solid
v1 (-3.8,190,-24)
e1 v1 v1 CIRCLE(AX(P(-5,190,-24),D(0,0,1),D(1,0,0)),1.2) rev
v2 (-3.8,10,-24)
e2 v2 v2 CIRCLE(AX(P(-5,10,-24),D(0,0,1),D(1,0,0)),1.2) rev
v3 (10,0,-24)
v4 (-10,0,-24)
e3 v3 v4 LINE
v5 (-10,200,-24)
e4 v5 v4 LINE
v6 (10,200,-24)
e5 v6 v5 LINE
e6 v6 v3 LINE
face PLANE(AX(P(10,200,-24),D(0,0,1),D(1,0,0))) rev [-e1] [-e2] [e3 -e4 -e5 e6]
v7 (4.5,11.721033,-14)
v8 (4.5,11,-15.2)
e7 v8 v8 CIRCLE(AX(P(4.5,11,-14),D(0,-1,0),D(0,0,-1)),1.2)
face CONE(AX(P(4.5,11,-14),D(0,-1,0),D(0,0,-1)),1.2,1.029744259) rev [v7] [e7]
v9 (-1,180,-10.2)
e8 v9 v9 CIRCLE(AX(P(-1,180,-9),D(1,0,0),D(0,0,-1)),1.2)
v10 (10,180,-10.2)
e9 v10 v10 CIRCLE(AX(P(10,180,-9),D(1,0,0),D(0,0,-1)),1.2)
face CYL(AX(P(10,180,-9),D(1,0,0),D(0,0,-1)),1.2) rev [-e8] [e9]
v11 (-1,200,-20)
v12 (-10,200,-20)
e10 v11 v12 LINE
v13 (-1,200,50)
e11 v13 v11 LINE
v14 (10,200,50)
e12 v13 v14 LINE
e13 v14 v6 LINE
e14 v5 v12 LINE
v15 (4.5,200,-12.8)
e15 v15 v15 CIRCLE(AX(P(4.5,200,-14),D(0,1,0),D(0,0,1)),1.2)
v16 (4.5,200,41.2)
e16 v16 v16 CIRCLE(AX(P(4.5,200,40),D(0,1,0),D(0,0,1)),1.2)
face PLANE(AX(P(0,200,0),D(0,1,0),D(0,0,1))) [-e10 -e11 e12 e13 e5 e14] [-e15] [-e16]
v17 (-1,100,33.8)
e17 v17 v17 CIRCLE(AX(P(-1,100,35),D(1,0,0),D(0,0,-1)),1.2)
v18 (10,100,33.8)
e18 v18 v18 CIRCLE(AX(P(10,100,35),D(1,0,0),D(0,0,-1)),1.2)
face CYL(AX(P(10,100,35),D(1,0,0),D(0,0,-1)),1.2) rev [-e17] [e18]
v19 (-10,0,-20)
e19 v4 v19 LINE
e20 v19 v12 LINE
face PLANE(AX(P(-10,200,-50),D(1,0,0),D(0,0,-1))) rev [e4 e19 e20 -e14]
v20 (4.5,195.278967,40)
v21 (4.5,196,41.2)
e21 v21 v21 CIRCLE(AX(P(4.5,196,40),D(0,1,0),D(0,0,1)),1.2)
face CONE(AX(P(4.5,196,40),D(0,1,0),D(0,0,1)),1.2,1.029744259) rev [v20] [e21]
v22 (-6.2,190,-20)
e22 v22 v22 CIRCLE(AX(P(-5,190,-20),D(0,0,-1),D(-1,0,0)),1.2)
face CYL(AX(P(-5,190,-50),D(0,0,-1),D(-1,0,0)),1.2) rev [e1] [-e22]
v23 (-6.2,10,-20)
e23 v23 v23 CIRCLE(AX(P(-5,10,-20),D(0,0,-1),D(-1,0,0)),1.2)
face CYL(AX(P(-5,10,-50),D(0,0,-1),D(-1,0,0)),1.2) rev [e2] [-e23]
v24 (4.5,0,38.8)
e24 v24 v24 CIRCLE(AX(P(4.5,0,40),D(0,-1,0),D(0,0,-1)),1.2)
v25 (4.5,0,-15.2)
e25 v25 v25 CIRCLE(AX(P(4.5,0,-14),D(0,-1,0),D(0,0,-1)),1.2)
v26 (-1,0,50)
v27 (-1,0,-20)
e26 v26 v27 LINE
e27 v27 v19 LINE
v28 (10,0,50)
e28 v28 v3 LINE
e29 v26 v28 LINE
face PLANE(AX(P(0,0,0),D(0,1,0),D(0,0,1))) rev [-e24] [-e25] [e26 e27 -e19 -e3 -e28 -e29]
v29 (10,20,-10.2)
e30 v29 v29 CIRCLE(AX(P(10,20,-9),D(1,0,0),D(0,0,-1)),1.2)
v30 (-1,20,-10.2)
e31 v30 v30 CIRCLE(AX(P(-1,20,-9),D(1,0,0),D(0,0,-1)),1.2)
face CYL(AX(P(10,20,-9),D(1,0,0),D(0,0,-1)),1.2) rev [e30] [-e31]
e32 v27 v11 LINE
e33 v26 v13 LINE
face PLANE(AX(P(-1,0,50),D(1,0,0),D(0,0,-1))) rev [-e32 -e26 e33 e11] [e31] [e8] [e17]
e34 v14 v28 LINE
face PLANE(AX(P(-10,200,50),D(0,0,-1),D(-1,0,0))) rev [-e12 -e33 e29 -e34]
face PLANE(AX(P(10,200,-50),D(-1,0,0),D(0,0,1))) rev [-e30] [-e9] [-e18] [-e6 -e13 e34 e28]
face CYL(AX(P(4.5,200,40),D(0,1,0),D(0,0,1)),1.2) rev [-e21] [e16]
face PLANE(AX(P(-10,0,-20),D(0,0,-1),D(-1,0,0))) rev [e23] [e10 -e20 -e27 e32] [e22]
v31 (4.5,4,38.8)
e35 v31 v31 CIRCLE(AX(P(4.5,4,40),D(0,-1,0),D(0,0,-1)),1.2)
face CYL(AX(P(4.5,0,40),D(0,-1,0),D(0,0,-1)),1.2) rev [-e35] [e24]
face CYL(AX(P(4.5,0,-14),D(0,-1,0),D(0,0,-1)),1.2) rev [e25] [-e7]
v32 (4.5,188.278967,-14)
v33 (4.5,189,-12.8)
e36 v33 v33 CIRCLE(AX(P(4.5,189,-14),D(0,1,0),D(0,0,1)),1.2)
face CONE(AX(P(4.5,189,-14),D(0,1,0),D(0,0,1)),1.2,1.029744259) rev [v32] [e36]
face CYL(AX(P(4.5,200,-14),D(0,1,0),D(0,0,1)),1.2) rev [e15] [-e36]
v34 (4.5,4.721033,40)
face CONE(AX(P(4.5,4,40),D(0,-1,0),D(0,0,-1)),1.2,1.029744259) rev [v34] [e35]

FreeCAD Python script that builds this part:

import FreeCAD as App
import Part
import Sketcher

V = App.Vector
Q = App.Units.Quantity

doc = App.newDocument("Part")
body = doc.addObject("PartDesign::Body", "Body")

# Sketch on XZ plane
sketch1 = body.newObject("Sketcher::SketchObject", "Sketch")
sketch1.AttachmentSupport = (doc.getObject("XZ_Plane"), [""])
sketch1.MapMode = "FlatFace"
sketch1.addGeometry([
    Part.LineSegment(V(-10, -50, 0), V(-10, 50, 0)),
    Part.LineSegment(V(-10, 50, 0), V(10, 50, 0)),
    Part.LineSegment(V(10, 50, 0), V(10, -50, 0)),
    Part.LineSegment(V(10, -50, 0), V(-10, -50, 0)),
], False)
sketch1.addConstraint([
    Sketcher.Constraint("Coincident", 0, 2, 1, 1),
    Sketcher.Constraint("Coincident", 1, 2, 2, 1),
    Sketcher.Constraint("Coincident", 2, 2, 3, 1),
    Sketcher.Constraint("Coincident", 3, 2, 0, 1),
    Sketcher.Constraint("Vertical", 0),
    Sketcher.Constraint("Horizontal", 1),
    Sketcher.Constraint("Vertical", 2),
    Sketcher.Constraint("Horizontal", 3),
    Sketcher.Constraint("Symmetric", 0, 2, 2, 2, -1, 1),
    Sketcher.Constraint("DistanceX", 1, 1, 1, 2, Q("20 mm")),
    Sketcher.Constraint("DistanceY", 0, 1, 0, 2, Q("100 mm")),
])
pad1 = body.newObject("PartDesign::Pad", "Pad")
pad1.Profile = sketch1
pad1.Length = 200
pad1.Reversed = True

# Sketch on XZ plane
sketch2 = body.newObject("Sketcher::SketchObject", "Sketch001")
sketch2.AttachmentSupport = (doc.getObject("XZ_Plane"), [""])
sketch2.MapMode = "FlatFace"
sketch2.AttachmentOffset = App.Placement(V(0, 0, -200), App.Rotation())
sketch2.addGeometry([
    Part.LineSegment(V(-10, -20, 0), V(-10, 50, 0)),
    Part.LineSegment(V(-10, 50, 0), V(-1, 50, 0)),
    Part.LineSegment(V(-1, 50, 0), V(-1, -20, 0)),
    Part.LineSegment(V(-1, -20, 0), V(-10, -20, 0)),
], False)
sketch2.addConstraint([
    Sketcher.Constraint("Coincident", 0, 2, 1, 1),
    Sketcher.Constraint("Coincident", 1, 2, 2, 1),
    Sketcher.Constraint("Coincident", 2, 2, 3, 1),
    Sketcher.Constraint("Coincident", 3, 2, 0, 1),
    Sketcher.Constraint("Vertical", 0),
    Sketcher.Constraint("Horizontal", 1),
    Sketcher.Constraint("Vertical", 2),
    Sketcher.Constraint("Horizontal", 3),
    Sketcher.Constraint("DistanceX", 1, 1, 1, 2, Q("9 mm")),
    Sketcher.Constraint("DistanceY", 0, 1, 0, 2, Q("70 mm")),
    Sketcher.Constraint("DistanceX", 0, 2, -1, 1, Q("10 mm")),
    Sketcher.Constraint("DistanceY", -1, 1, 0, 2, Q("50 mm")),
])
pocket1 = body.newObject("PartDesign::Pocket", "Pocket")
pocket1.Profile = sketch2
pocket1.Type = "ThroughAll"
pocket1.Reversed = True

# Sketch on XZ plane
sketch3 = body.newObject("Sketcher::SketchObject", "Sketch002")
sketch3.AttachmentSupport = (doc.getObject("XZ_Plane"), [""])
sketch3.MapMode = "FlatFace"
sketch3.AttachmentOffset = App.Placement(V(0, 0, -200), App.Rotation())
sketch3.addGeometry([
    Part.Circle(V(4.5, -40, 0), V(0, 0, 1), 1.2),
    Part.Circle(V(4.5, 40, 0), V(0, 0, 1), 1.2),
], False)
sketch3.addConstraint([
    Sketcher.Constraint("Equal", 0, 1),
    Sketcher.Constraint("Symmetric", 0, 3, 1, 3, -1),
    Sketcher.Constraint("Diameter", 0, Q("2.4 mm")),
    Sketcher.Constraint("DistanceY", 0, 3, -1, 1, Q("40 mm")),
    Sketcher.Constraint("DistanceX", -1, 1, 0, 3, Q("4.5 mm")),
])
doc.recompute()
hole = body.newObject("PartDesign::Hole", "Hole")
hole.Profile = sketch3
hole.ThreadType = "None"
hole.Diameter = 2.4
hole.DepthType = "Dimension"
hole.Depth = 4
hole.DrillPoint = "Angled"
hole.DrillPointAngle = 118
hole.Reversed = True

# Sketch on XZ plane
sketch4 = body.newObject("Sketcher::SketchObject", "Sketch003")
sketch4.AttachmentSupport = (doc.getObject("XZ_Plane"), [""])
sketch4.MapMode = "FlatFace"
sketch4.addGeometry([
    Part.Circle(V(4.5, -40, 0), V(0, 0, 1), 1.2),
    Part.Circle(V(4.5, 40, 0), V(0, 0, 1), 1.2),
], False)
sketch4.addConstraint([
    Sketcher.Constraint("Equal", 0, 1),
    Sketcher.Constraint("Symmetric", 0, 3, 1, 3, -1),
    Sketcher.Constraint("Diameter", 0, Q("2.4 mm")),
    Sketcher.Constraint("DistanceY", 0, 3, -1, 1, Q("40 mm")),
    Sketcher.Constraint("DistanceX", -1, 1, 0, 3, Q("4.5 mm")),
])
doc.recompute()
hole2 = body.newObject("PartDesign::Hole", "Hole001")
hole2.Profile = sketch4
hole2.ThreadType = "None"
hole2.Diameter = 2.4
hole2.DepthType = "Dimension"
hole2.Depth = 4
hole2.DrillPoint = "Angled"
hole2.DrillPointAngle = 118

# Sketch on XY plane
sketch5 = body.newObject("Sketcher::SketchObject", "Sketch004")
sketch5.AttachmentSupport = (doc.getObject("XY_Plane"), [""])
sketch5.MapMode = "FlatFace"
sketch5.AttachmentOffset = App.Placement(V(0, 0, -50), App.Rotation())
sketch5.addGeometry([
    Part.Circle(V(-5, 190, 0), V(0, 0, 1), 1.2),
    Part.Circle(V(-5, 10, 0), V(0, 0, 1), 1.2),
], False)
sketch5.addConstraint([
    Sketcher.Constraint("Equal", 0, 1),
    Sketcher.Constraint("Vertical", 0, 3, 1, 3),
    Sketcher.Constraint("Diameter", 0, Q("2.4 mm")),
    Sketcher.Constraint("DistanceX", 0, 3, -1, 1, Q("5 mm")),
    Sketcher.Constraint("DistanceY", -1, 1, 0, 3, Q("190 mm")),
    Sketcher.Constraint("DistanceY", -1, 1, 1, 3, Q("10 mm")),
])
doc.recompute()
hole3 = body.newObject("PartDesign::Hole", "Hole002")
hole3.Profile = sketch5
hole3.ThreadType = "None"
hole3.Diameter = 2.4
hole3.DepthType = "ThroughAll"
hole3.Reversed = True

# Sketch on XZ plane
sketch6 = body.newObject("Sketcher::SketchObject", "Sketch005")
sketch6.AttachmentSupport = (doc.getObject("XZ_Plane"), [""])
sketch6.MapMode = "FlatFace"
sketch6.addGeometry([
    Part.LineSegment(V(-10, -24, 0), V(-10, -50, 0)),
    Part.LineSegment(V(-10, -50, 0), V(10, -50, 0)),
    Part.LineSegment(V(10, -50, 0), V(10, -24, 0)),
    Part.LineSegment(V(10, -24, 0), V(-10, -24, 0)),
], False)
sketch6.addConstraint([
    Sketcher.Constraint("Coincident", 0, 2, 1, 1),
    Sketcher.Constraint("Coincident", 1, 2, 2, 1),
    Sketcher.Constraint("Coincident", 2, 2, 3, 1),
    Sketcher.Constraint("Coincident", 3, 2, 0, 1),
    Sketcher.Constraint("Vertical", 0),
    Sketcher.Constraint("Horizontal", 1),
    Sketcher.Constraint("Vertical", 2),
    Sketcher.Constraint("Horizontal", 3),
    Sketcher.Constraint("DistanceX", 1, 1, 1, 2, Q("20 mm")),
    Sketcher.Constraint("DistanceY", 0, 2, 0, 1, Q("26 mm")),
    Sketcher.Constraint("DistanceX", 0, 2, -1, 1, Q("10 mm")),
    Sketcher.Constraint("DistanceY", 0, 2, -1, 1, Q("50 mm")),
])
pocket2 = body.newObject("PartDesign::Pocket", "Pocket001")
pocket2.Profile = sketch6
pocket2.Type = "ThroughAll"

# Sketch on XZ plane
sketch7 = body.newObject("Sketcher::SketchObject", "Sketch006")
sketch7.AttachmentSupport = (doc.getObject("XZ_Plane"), [""])
sketch7.MapMode = "FlatFace"
sketch7.addGeometry(Part.Circle(V(4.5, -14, 0), V(0, 0, 1), 1.2), False)
sketch7.addConstraint([
    Sketcher.Constraint("Diameter", 0, Q("2.4 mm")),
    Sketcher.Constraint("DistanceY", 0, 3, -1, 1, Q("14 mm")),
    Sketcher.Constraint("DistanceX", -1, 1, 0, 3, Q("4.5 mm")),
])
doc.recompute()
hole4 = body.newObject("PartDesign::Hole", "Hole003")
hole4.Profile = sketch7
hole4.ThreadType = "None"
hole4.Diameter = 2.4
hole4.DepthType = "Dimension"
hole4.Depth = 11
hole4.DrillPoint = "Angled"
hole4.DrillPointAngle = 118

# Sketch on XZ plane
sketch8 = body.newObject("Sketcher::SketchObject", "Sketch007")
sketch8.AttachmentSupport = (doc.getObject("XZ_Plane"), [""])
sketch8.MapMode = "FlatFace"
sketch8.AttachmentOffset = App.Placement(V(0, 0, -200), App.Rotation())
sketch8.addGeometry(Part.Circle(V(4.5, -14, 0), V(0, 0, 1), 1.2), False)
sketch8.addConstraint([
    Sketcher.Constraint("Diameter", 0, Q("2.4 mm")),
    Sketcher.Constraint("DistanceY", 0, 3, -1, 1, Q("14 mm")),
    Sketcher.Constraint("DistanceX", -1, 1, 0, 3, Q("4.5 mm")),
])
doc.recompute()
hole5 = body.newObject("PartDesign::Hole", "Hole004")
hole5.Profile = sketch8
hole5.ThreadType = "None"
hole5.Diameter = 2.4
hole5.DepthType = "Dimension"
hole5.Depth = 11
hole5.DrillPoint = "Angled"
hole5.DrillPointAngle = 118
hole5.Reversed = True

# Sketch on YZ plane
sketch9 = body.newObject("Sketcher::SketchObject", "Sketch008")
sketch9.AttachmentSupport = (doc.getObject("YZ_Plane"), [""])
sketch9.MapMode = "FlatFace"
sketch9.AttachmentOffset = App.Placement(V(0, 0, 10), App.Rotation())
sketch9.addGeometry([
    Part.Circle(V(20, -9, 0), V(0, 0, 1), 1.2),
    Part.Circle(V(180, -9, 0), V(0, 0, 1), 1.2),
    Part.Circle(V(100, 35, 0), V(0, 0, 1), 1.2),
], False)
sketch9.addConstraint([
    Sketcher.Constraint("Equal", 0, 1),
    Sketcher.Constraint("Equal", 1, 2),
    Sketcher.Constraint("Horizontal", 0, 3, 1, 3),
    Sketcher.Constraint("Diameter", 0, Q("2.4 mm")),
    Sketcher.Constraint("DistanceX", -1, 1, 0, 3, Q("20 mm")),
    Sketcher.Constraint("DistanceY", 0, 3, -1, 1, Q("9 mm")),
    Sketcher.Constraint("DistanceX", -1, 1, 1, 3, Q("180 mm")),
    Sketcher.Constraint("DistanceX", -1, 1, 2, 3, Q("100 mm")),
    Sketcher.Constraint("DistanceY", -1, 1, 2, 3, Q("35 mm")),
])
doc.recompute()
hole6 = body.newObject("PartDesign::Hole", "Hole005")
hole6.Profile = sketch9
hole6.ThreadType = "None"
hole6.Diameter = 2.4
hole6.DepthType = "Dimension"
hole6.Depth = 11
hole6.DrillPoint = "Angled"
hole6.DrillPointAngle = 118

doc.recompute()
